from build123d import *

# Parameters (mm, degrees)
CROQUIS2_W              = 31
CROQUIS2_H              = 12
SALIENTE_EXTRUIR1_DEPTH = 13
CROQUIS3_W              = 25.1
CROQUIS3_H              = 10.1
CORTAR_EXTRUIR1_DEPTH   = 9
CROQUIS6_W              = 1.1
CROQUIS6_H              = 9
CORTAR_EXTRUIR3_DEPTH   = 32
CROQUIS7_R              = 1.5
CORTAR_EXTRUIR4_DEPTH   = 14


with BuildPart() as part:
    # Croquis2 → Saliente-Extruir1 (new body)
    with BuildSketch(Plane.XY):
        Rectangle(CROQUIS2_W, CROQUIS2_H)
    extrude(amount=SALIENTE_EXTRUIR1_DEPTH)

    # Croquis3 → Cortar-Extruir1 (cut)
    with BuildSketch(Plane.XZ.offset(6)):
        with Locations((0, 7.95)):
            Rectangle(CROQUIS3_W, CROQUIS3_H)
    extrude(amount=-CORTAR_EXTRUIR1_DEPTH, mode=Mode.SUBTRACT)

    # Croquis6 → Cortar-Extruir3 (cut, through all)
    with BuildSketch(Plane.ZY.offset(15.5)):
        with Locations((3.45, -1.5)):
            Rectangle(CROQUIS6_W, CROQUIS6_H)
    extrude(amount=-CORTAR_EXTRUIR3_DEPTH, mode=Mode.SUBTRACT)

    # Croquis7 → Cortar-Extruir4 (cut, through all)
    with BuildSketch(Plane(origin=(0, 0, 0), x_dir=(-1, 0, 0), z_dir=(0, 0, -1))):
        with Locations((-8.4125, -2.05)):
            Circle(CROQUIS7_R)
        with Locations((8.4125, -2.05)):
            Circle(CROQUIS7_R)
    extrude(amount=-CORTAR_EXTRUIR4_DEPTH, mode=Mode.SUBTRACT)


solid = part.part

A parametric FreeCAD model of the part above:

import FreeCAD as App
import Part
import Sketcher

doc = App.newDocument("Part")
params = doc.addObject("Spreadsheet::Sheet", "Params")
for row, (alias, value) in enumerate([
    ("sketch1_width", "31 mm"),
    ("sketch1_height", "12 mm"),
    ("pad1_length", "13 mm"),
    ("sketch2_width", "25.1 mm"),
    ("sketch2_height", "10.1 mm"),
    ("pocket1_length", "9 mm"),
    ("sketch3_width", "9 mm"),
    ("sketch3_height", "1.1 mm"),
    ("sketch4_diameter", "3 mm"),
], start=1):
    params.set(f"A{row}", alias)
    params.set(f"B{row}", "=" + value)
    params.setAlias(f"B{row}", alias)

body = doc.addObject("PartDesign::Body", "Body")

# Sketch on XY plane
sketch1 = body.newObject("Sketcher::SketchObject", "Sketch")
sketch1.AttachmentSupport = (doc.getObject("XY_Plane"), [""])
sketch1.MapMode = "FlatFace"
sketch1.addGeometry(Part.LineSegment(App.Vector(-15.5, 6, 0), App.Vector(-15.5, -6, 0)), False)
sketch1.addGeometry(Part.LineSegment(App.Vector(-15.5, -6, 0), App.Vector(15.5, -6, 0)), False)
sketch1.addGeometry(Part.LineSegment(App.Vector(15.5, -6, 0), App.Vector(15.5, 6, 0)), False)
sketch1.addGeometry(Part.LineSegment(App.Vector(15.5, 6, 0), App.Vector(-15.5, 6, 0)), False)
sketch1.addConstraint(Sketcher.Constraint("Coincident", 0, 2, 1, 1))
sketch1.addConstraint(Sketcher.Constraint("Coincident", 1, 2, 2, 1))
sketch1.addConstraint(Sketcher.Constraint("Coincident", 2, 2, 3, 1))
sketch1.addConstraint(Sketcher.Constraint("Coincident", 3, 2, 0, 1))
sketch1.addConstraint(Sketcher.Constraint("Vertical", 0))
sketch1.addConstraint(Sketcher.Constraint("Horizontal", 1))
sketch1.addConstraint(Sketcher.Constraint("Vertical", 2))
sketch1.addConstraint(Sketcher.Constraint("Horizontal", 3))
sketch1.addConstraint(Sketcher.Constraint("Symmetric", 0, 2, 2, 2, -1, 1))
sketch1.addConstraint(Sketcher.Constraint("DistanceX", 1, 1, 1, 2, 31.0))
sketch1.addConstraint(Sketcher.Constraint("DistanceY", 0, 2, 0, 1, 12.0))
sketch1.setExpression("Constraints[9]", "Params.sketch1_width")
sketch1.setExpression("Constraints[10]", "Params.sketch1_height")
pad1 = body.newObject("PartDesign::Pad", "Pad")
pad1.Profile = sketch1
pad1.setExpression("Length", "Params.pad1_length")

# Sketch on XZ plane
sketch2 = body.newObject("Sketcher::SketchObject", "Sketch001")
sketch2.AttachmentSupport = (doc.getObject("XZ_Plane"), [""])
sketch2.MapMode = "FlatFace"
sketch2.AttachmentOffset = App.Placement(App.Vector(0, 0, 6), App.Rotation())
sketch2.addGeometry(Part.LineSegment(App.Vector(-12.55, 13, 0), App.Vector(-12.55, 2.9, 0)), False)
sketch2.addGeometry(Part.LineSegment(App.Vector(-12.55, 2.9, 0), App.Vector(12.55, 2.9, 0)), False)
sketch2.addGeometry(Part.LineSegment(App.Vector(12.55, 2.9, 0), App.Vector(12.55, 13, 0)), False)
sketch2.addGeometry(Part.LineSegment(App.Vector(12.55, 13, 0), App.Vector(-12.55, 13, 0)), False)
sketch2.addConstraint(Sketcher.Constraint("Coincident", 0, 2, 1, 1))
sketch2.addConstraint(Sketcher.Constraint("Coincident", 1, 2, 2, 1))
sketch2.addConstraint(Sketcher.Constraint("Coincident", 2, 2, 3, 1))
sketch2.addConstraint(Sketcher.Constraint("Coincident", 3, 2, 0, 1))
sketch2.addConstraint(Sketcher.Constraint("Vertical", 0))
sketch2.addConstraint(Sketcher.Constraint("Horizontal", 1))
sketch2.addConstraint(Sketcher.Constraint("Vertical", 2))
sketch2.addConstraint(Sketcher.Constraint("Horizontal", 3))
sketch2.addConstraint(Sketcher.Constraint("DistanceX", 1, 1, 1, 2, 25.1))
sketch2.addConstraint(Sketcher.Constraint("DistanceY", 0, 2, 0, 1, 10.1))
sketch2.addConstraint(Sketcher.Constraint("DistanceY", -1, 1, 2, 2, 13.0))
sketch2.addConstraint(Sketcher.Constraint("DistanceX", 0, 2, -1, 1, 12.55))
sketch2.setExpression("Constraints[8]", "Params.sketch2_width")
sketch2.setExpression("Constraints[9]", "Params.sketch2_height")
pocket1 = body.newObject("PartDesign::Pocket", "Pocket")
pocket1.Profile = sketch2
pocket1.setExpression("Length", "Params.pocket1_length")

# Sketch on YZ plane
sketch3 = body.newObject("Sketcher::SketchObject", "Sketch002")
sketch3.AttachmentSupport = (doc.getObject("YZ_Plane"), [""])
sketch3.MapMode = "FlatFace"
sketch3.AttachmentOffset = App.Placement(App.Vector(0, 0, -15.5), App.Rotation())
sketch3.addGeometry(Part.LineSegment(App.Vector(3, 2.9, 0), App.Vector(-6, 2.9, 0)), False)
sketch3.addGeometry(Part.LineSegment(App.Vector(-6, 2.9, 0), App.Vector(-6, 4, 0)), False)
sketch3.addGeometry(Part.LineSegment(App.Vector(-6, 4, 0), App.Vector(3, 4, 0)), False)
sketch3.addGeometry(Part.LineSegment(App.Vector(3, 4, 0), App.Vector(3, 2.9, 0)), False)
sketch3.addConstraint(Sketcher.Constraint("Coincident", 0, 2, 1, 1))
sketch3.addConstraint(Sketcher.Constraint("Coincident", 1, 2, 2, 1))
sketch3.addConstraint(Sketcher.Constraint("Coincident", 2, 2, 3, 1))
sketch3.addConstraint(Sketcher.Constraint("Coincident", 3, 2, 0, 1))
sketch3.addConstraint(Sketcher.Constraint("Horizontal", 0))
sketch3.addConstraint(Sketcher.Constraint("Vertical", 1))
sketch3.addConstraint(Sketcher.Constraint("Horizontal", 2))
sketch3.addConstraint(Sketcher.Constraint("Vertical", 3))
sketch3.addConstraint(Sketcher.Constraint("DistanceX", 0, 2, 0, 1, 9.0))
sketch3.addConstraint(Sketcher.Constraint("DistanceY", 1, 1, 1, 2, 1.1))
sketch3.addConstraint(Sketcher.Constraint("DistanceX", 0, 2, -1, 1, 6.0))
sketch3.addConstraint(Sketcher.Constraint("DistanceY", -1, 1, 1, 2, 4.0))
sketch3.setExpression("Constraints[8]", "Params.sketch3_width")
sketch3.setExpression("Constraints[9]", "Params.sketch3_height")
pocket2 = body.newObject("PartDesign::Pocket", "Pocket001")
pocket2.Profile = sketch3
pocket2.Type = "ThroughAll"
pocket2.Reversed = True

# Sketch on XY plane
sketch4 = body.newObject("Sketcher::SketchObject", "Sketch003")
sketch4.AttachmentSupport = (doc.getObject("XY_Plane"), [""])
sketch4.MapMode = "FlatFace"
sketch4.addGeometry(Part.Circle(App.Vector(8.4125, -2.05, 0), App.Vector(0, 0, 1), 1.5), False)
sketch4.addGeometry(Part.Circle(App.Vector(-8.4125, -2.05, 0), App.Vector(0, 0, 1), 1.5), False)
sketch4.addConstraint(Sketcher.Constraint("Equal", 0, 1))
sketch4.addConstraint(Sketcher.Constraint("Symmetric", 0, 3, 1, 3, -2))
sketch4.addConstraint(Sketcher.Constraint("Diameter", 0, 3.0))
sketch4.addConstraint(Sketcher.Constraint("DistanceY", 0, 3, -1, 1, 2.05))
sketch4.addConstraint(Sketcher.Constraint("DistanceX", 1, 3, 0, 3, 16.825))
sketch4.setExpression("Constraints[2]", "Params.sketch4_diameter")
pocket3 = body.newObject("PartDesign::Pocket", "Pocket002")
pocket3.Profile = sketch4
pocket3.Type = "ThroughAll"
pocket3.Reversed = True

doc.recompute()
